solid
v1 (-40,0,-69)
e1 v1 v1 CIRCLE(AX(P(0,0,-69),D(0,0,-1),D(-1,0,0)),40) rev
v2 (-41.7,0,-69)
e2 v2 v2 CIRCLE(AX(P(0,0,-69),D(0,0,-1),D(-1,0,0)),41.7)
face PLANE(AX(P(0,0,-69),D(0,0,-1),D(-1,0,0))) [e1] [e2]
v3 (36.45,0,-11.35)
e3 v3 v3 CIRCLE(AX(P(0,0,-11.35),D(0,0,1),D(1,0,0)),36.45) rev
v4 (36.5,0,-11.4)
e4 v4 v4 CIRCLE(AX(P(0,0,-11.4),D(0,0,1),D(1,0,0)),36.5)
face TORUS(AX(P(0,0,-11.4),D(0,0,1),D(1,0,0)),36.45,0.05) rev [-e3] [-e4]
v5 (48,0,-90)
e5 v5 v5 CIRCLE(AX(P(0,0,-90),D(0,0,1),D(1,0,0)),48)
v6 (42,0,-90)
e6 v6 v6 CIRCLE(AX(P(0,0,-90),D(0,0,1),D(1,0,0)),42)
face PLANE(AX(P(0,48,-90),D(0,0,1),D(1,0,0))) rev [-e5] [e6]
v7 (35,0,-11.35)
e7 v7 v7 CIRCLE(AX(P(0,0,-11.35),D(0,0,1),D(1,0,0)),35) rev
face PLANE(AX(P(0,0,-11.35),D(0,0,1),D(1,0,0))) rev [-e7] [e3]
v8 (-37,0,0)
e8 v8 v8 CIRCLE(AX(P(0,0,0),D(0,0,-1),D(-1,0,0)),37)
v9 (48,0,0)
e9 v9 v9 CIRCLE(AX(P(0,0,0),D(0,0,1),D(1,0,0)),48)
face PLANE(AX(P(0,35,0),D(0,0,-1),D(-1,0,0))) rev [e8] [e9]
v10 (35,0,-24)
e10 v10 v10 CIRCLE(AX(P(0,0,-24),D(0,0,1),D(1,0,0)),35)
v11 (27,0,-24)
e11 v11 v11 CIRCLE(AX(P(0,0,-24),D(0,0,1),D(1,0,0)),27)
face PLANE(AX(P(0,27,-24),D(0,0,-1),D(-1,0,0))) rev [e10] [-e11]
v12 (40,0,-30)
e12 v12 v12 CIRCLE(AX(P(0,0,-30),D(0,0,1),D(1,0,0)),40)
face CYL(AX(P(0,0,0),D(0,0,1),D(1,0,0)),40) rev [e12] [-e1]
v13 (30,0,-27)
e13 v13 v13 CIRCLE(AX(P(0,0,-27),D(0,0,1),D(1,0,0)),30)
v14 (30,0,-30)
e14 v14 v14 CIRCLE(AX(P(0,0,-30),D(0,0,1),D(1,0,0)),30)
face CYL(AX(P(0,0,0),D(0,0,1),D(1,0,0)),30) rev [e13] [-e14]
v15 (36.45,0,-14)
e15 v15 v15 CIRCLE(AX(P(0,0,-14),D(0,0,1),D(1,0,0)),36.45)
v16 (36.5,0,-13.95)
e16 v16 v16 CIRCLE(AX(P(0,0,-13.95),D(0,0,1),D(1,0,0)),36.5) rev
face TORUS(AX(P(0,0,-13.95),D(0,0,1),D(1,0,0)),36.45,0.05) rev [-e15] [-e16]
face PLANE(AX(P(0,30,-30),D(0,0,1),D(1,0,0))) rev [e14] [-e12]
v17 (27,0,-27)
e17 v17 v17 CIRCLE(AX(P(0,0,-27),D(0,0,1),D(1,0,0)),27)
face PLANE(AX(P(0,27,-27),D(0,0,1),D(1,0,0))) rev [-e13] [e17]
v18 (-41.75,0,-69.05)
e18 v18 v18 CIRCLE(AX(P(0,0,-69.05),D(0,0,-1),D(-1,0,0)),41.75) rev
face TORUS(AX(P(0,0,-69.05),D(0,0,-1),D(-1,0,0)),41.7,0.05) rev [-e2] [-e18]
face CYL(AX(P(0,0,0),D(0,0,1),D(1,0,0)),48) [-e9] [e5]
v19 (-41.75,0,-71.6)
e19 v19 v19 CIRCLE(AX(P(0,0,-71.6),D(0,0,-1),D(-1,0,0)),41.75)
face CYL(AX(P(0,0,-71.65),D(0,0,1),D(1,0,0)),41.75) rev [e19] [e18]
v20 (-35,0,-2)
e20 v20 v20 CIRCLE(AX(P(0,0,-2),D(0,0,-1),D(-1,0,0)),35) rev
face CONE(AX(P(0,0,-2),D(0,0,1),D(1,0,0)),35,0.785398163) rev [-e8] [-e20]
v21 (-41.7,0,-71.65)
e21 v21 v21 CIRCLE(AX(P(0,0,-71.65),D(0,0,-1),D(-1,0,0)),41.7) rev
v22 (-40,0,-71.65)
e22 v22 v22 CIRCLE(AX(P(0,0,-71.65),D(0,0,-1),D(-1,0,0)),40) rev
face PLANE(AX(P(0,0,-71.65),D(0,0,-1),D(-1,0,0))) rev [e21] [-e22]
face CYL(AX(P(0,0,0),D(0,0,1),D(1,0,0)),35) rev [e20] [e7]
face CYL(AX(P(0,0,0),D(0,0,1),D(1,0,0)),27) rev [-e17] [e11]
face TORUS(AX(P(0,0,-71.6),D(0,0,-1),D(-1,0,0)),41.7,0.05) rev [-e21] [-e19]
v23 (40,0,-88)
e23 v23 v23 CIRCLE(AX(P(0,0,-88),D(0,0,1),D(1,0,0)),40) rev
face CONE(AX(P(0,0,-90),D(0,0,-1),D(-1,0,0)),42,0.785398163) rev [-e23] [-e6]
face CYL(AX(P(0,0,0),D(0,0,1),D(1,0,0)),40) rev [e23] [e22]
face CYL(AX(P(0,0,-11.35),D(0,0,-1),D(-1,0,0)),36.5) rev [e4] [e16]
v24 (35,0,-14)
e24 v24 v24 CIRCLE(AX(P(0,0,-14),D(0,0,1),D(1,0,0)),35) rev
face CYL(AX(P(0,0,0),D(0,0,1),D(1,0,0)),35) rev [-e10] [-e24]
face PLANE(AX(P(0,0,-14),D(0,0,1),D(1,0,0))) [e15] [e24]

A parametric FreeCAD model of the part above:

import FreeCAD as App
import Part
import Sketcher


def edges_at(feature, points):
    """Names of the edges that pass closest to the given points."""
    edges = feature.Shape.Edges
    near = lambda p: min(range(len(edges)), key=lambda i: edges[i].distToShape(Part.Vertex(*p))[0])
    return sorted({f"Edge{near(p) + 1}" for p in points})

doc = App.newDocument("Part")
params = doc.addObject("Spreadsheet::Sheet", "Params")
for row, (alias, value) in enumerate([
    ("sketch1_width", "13 mm"),
    ("sketch1_width2", "8 mm"),
    ("sketch1_width3", "3 mm"),
    ("sketch1_height", "90 mm"),
    ("sketch1_height2", "24 mm"),
    ("revolution_angle", "360 deg"),
    ("sketch2_diameter", "73 mm"),
    ("pocket1_length", "2.65 mm"),
    ("sketch3_diameter", "83.5 mm"),
    ("pocket2_length", "2.65 mm"),
    ("fillet_radius", "0.05 mm"),
    ("chamfer_size", "2 mm"),
], start=1):
    params.set(f"A{row}", alias)
    params.set(f"B{row}", "=" + value)
    params.setAlias(f"B{row}", alias)

body = doc.addObject("PartDesign::Body", "Body")

# Sketch on YZ plane
sketch1 = doc.addObject("Sketcher::SketchObject", "Sketch")
body.addObject(sketch1)
sketch1.AttachmentSupport = (doc.YZ_Plane, [""])
sketch1.MapMode = "FlatFace"
sketch1.addGeometry([
    Part.LineSegment(App.Vector(48, -90, 0), App.Vector(48, 0, 0)),  # 0
    Part.LineSegment(App.Vector(48, 0, 0), App.Vector(35, 0, 0)),  # 1
    Part.LineSegment(App.Vector(35, 0, 0), App.Vector(35, -24, 0)),  # 2
    Part.LineSegment(App.Vector(35, -24, 0), App.Vector(27, -24, 0)),  # 3
    Part.LineSegment(App.Vector(27, -24, 0), App.Vector(27, -27, 0)),  # 4
    Part.LineSegment(App.Vector(27, -27, 0), App.Vector(30, -27, 0)),  # 5
    Part.LineSegment(App.Vector(30, -27, 0), App.Vector(30, -30, 0)),  # 6
    Part.LineSegment(App.Vector(30, -30, 0), App.Vector(40, -30, 0)),  # 7
    Part.LineSegment(App.Vector(40, -30, 0), App.Vector(40, -90, 0)),  # 8
    Part.LineSegment(App.Vector(40, -90, 0), App.Vector(48, -90, 0)),  # 9
], False)
sketch1.addConstraint([
    Sketcher.Constraint("Coincident", 0, 2, 1, 1),
    Sketcher.Constraint("Coincident", 1, 2, 2, 1),
    Sketcher.Constraint("Coincident", 2, 2, 3, 1),
    Sketcher.Constraint("Coincident", 3, 2, 4, 1),
    Sketcher.Constraint("Coincident", 4, 2, 5, 1),
    Sketcher.Constraint("Coincident", 5, 2, 6, 1),
    Sketcher.Constraint("Coincident", 6, 2, 7, 1),
    Sketcher.Constraint("Coincident", 7, 2, 8, 1),
    Sketcher.Constraint("Coincident", 8, 2, 9, 1),
    Sketcher.Constraint("Coincident", 9, 2, 0, 1),
    Sketcher.Constraint("Vertical", 0),
    Sketcher.Constraint("Horizontal", 1),
    Sketcher.Constraint("Vertical", 2),
    Sketcher.Constraint("Horizontal", 3),
    Sketcher.Constraint("Vertical", 4),
    Sketcher.Constraint("Horizontal", 5),
    Sketcher.Constraint("Vertical", 6),
    Sketcher.Constraint("Horizontal", 7),
    Sketcher.Constraint("Vertical", 8),
    Sketcher.Constraint("Horizontal", 9),
    Sketcher.Constraint("PointOnObject", 0, 2, -1),
    Sketcher.Constraint("Equal", 3, 9),
    Sketcher.Constraint("Equal", 5, 4),
    Sketcher.Constraint("Equal", 4, 6),
    Sketcher.Constraint("DistanceX", 1, 2, 1, 1, 13.0),
    Sketcher.Constraint("DistanceX", 3, 2, 3, 1, 8.0),
    Sketcher.Constraint("DistanceX", 5, 1, 5, 2, 3.0),
    Sketcher.Constraint("DistanceY", 0, 1, 0, 2, 90.0),
    Sketcher.Constraint("DistanceY", 2, 2, 2, 1, 24.0),
    Sketcher.Constraint("DistanceX", -1, 1, 0, 2, 48.0),
])
sketch1.setExpression("Constraints[24]", "Params.sketch1_width")
sketch1.setExpression("Constraints[25]", "Params.sketch1_width2")
sketch1.setExpression("Constraints[26]", "Params.sketch1_width3")
sketch1.setExpression("Constraints[27]", "Params.sketch1_height")
sketch1.setExpression("Constraints[28]", "Params.sketch1_height2")
revolution = doc.addObject("PartDesign::Revolution", "Revolution")
body.addObject(revolution)
revolution.Profile = sketch1
revolution.ReferenceAxis = (sketch1, ["V_Axis"])
revolution.setExpression("Angle", "Params.revolution_angle")

# Sketch on XY plane
sketch2 = doc.addObject("Sketcher::SketchObject", "Sketch001")
body.addObject(sketch2)
sketch2.AttachmentSupport = (doc.XY_Plane, [""])
sketch2.MapMode = "FlatFace"
sketch2.AttachmentOffset = App.Placement(App.Vector(0, 0, -14), App.Rotation())
sketch2.addGeometry(Part.Circle(App.Vector(0, 0, 0), App.Vector(0, 0, 1), 36), False)
sketch2.addConstraint([
    Sketcher.Constraint("Coincident", 0, 3, -1, 1),
    Sketcher.Constraint("Diameter", 0, 73.0),
])
sketch2.setExpression("Constraints[1]", "Params.sketch2_diameter")
pocket1 = doc.addObject("PartDesign::Pocket", "Pocket")
body.addObject(pocket1)
pocket1.Profile = sketch2
pocket1.setExpression("Length", "Params.pocket1_length")
pocket1.Reversed = True

# Sketch on XY plane
sketch3 = doc.addObject("Sketcher::SketchObject", "Sketch002")
body.addObject(sketch3)
sketch3.AttachmentSupport = (doc.XY_Plane, [""])
sketch3.MapMode = "FlatFace"
sketch3.AttachmentOffset = App.Placement(App.Vector(0, 0, -69), App.Rotation())
sketch3.addGeometry(Part.Circle(App.Vector(0, 0, 0), App.Vector(0, 0, 1), 42), False)
sketch3.addConstraint([
    Sketcher.Constraint("Coincident", 0, 3, -1, 1),
    Sketcher.Constraint("Diameter", 0, 83.5),
])
sketch3.setExpression("Constraints[1]", "Params.sketch3_diameter")
pocket2 = doc.addObject("PartDesign::Pocket", "Pocket001")
body.addObject(pocket2)
pocket2.Profile = sketch3
pocket2.setExpression("Length", "Params.pocket2_length")
doc.recompute()

fillet = doc.addObject("PartDesign::Fillet", "Fillet")
body.addObject(fillet)
fillet.Base = (pocket2, edges_at(pocket2, [
    (-36.5, 0, -11.35),
    (-36.5, 0, -14),
    (41.75, 0, -71.65),
    (41.75, 0, -69),
]))
fillet.setExpression("Radius", "Params.fillet_radius")
doc.recompute()

chamfer = doc.addObject("PartDesign::Chamfer", "Chamfer")
body.addObject(chamfer)
chamfer.Base = (fillet, edges_at(fillet, [(-40, 0, -90), (-35, 0, 0)]))
chamfer.setExpression("Size", "Params.chamfer_size")

doc.recompute()
